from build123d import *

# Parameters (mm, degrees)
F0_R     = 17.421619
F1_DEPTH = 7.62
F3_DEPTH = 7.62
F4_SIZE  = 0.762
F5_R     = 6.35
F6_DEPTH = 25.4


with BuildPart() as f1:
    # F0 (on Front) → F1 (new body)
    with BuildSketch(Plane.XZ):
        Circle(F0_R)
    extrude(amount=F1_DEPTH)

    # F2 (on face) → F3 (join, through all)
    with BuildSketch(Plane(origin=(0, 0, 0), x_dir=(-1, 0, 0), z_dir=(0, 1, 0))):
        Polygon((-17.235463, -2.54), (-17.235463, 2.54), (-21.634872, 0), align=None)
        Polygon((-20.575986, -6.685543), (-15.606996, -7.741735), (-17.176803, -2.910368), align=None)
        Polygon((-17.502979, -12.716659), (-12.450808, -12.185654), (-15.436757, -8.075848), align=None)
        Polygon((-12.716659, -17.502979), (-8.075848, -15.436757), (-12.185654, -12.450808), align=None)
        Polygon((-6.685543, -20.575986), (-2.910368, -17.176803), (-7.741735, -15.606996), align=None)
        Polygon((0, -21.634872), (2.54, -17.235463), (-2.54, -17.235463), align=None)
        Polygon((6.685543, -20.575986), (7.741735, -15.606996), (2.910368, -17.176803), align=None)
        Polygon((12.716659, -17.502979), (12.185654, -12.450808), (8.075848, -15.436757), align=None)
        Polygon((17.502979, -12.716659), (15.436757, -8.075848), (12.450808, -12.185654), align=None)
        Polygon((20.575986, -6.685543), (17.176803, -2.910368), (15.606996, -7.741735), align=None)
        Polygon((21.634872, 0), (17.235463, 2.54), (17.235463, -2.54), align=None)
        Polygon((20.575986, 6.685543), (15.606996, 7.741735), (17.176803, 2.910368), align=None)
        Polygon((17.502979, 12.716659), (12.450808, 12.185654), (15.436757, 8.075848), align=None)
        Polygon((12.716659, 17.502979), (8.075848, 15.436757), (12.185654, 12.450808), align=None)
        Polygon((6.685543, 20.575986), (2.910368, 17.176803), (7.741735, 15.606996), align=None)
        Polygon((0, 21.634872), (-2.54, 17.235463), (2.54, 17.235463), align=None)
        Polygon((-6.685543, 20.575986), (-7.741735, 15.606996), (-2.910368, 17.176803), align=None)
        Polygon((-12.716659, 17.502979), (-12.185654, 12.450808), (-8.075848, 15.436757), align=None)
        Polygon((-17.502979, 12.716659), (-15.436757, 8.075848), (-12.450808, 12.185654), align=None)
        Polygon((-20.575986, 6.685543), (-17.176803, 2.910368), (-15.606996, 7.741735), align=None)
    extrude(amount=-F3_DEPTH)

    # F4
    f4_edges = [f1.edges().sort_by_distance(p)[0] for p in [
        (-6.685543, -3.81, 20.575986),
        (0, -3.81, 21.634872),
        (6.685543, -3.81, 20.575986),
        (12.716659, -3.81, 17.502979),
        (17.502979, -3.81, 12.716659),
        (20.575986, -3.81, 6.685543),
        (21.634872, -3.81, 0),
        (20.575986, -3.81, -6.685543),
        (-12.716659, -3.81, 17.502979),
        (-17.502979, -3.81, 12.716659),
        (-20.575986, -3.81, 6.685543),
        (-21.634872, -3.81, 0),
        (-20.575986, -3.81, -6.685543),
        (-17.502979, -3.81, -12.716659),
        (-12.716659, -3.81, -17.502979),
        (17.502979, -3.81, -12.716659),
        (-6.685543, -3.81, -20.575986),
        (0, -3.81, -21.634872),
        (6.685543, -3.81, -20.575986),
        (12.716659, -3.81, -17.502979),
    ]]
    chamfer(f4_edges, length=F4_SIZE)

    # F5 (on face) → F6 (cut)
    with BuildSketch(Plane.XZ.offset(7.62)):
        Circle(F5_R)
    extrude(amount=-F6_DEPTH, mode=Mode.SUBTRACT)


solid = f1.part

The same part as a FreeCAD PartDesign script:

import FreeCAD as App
import Part
import Sketcher

V = App.Vector
Q = App.Units.Quantity


def edges_at(feature, points):
    """Names of the edges that pass closest to the given points."""
    edges = feature.Shape.Edges
    near = lambda p: min(range(len(edges)), key=lambda i: edges[i].distToShape(Part.Vertex(*p))[0])
    return sorted({f"Edge{near(p) + 1}" for p in points})


def add_polygon(sketch, points):
    """Adds a closed chain of lines whose ends are joined by coincident constraints."""
    first, n = sketch.GeometryCount, len(points)
    for a, b in zip(points, points[1:] + points[:1]):
        sketch.addGeometry(Part.LineSegment(App.Vector(*a, 0), App.Vector(*b, 0)), False)
    for i in range(n):
        sketch.addConstraint(Sketcher.Constraint("Coincident", first + i, 2, first + (i + 1) % n, 1))

doc = App.newDocument("Part")
body = doc.addObject("PartDesign::Body", "Body")

sketch1 = body.newObject("Sketcher::SketchObject", "Sketch")
sketch1.AttachmentSupport = (doc.getObject("XZ_Plane"), [""])
sketch1.MapMode = "FlatFace"
sketch1.addGeometry(Part.Circle(V(0, 0, 0), V(0, 0, 1), 17), False)
sketch1.addConstraint([
    Sketcher.Constraint("Coincident", 0, 3, -1, 1),
    Sketcher.Constraint("Diameter", 0, 34.843238),
])
pad1 = body.newObject("PartDesign::Pad", "Pad")
pad1.Profile = sketch1
pad1.Length = Q("0.3 in")

sketch2 = body.newObject("Sketcher::SketchObject", "Sketch001")
sketch2.AttachmentSupport = (doc.getObject("XZ_Plane"), [""])
sketch2.MapMode = "FlatFace"
add_polygon(sketch2, [(17, -3), (17, 3), (22, 0)])
add_polygon(sketch2, [(21, -7), (16, -8), (17, -3)])
add_polygon(sketch2, [(18, -13), (12, -12), (15, -8)])
add_polygon(sketch2, [(13, -18), (8, -15), (12, -12)])
add_polygon(sketch2, [(7, -21), (3, -17), (8, -16)])
add_polygon(sketch2, [(0, -22), (-3, -17), (3, -17)])
add_polygon(sketch2, [(-7, -21), (-8, -16), (-3, -17)])
add_polygon(sketch2, [(-13, -18), (-12, -12), (-8, -15)])
add_polygon(sketch2, [(-18, -13), (-15, -8), (-12, -12)])
add_polygon(sketch2, [(-21, -7), (-17, -3), (-16, -8)])
add_polygon(sketch2, [(-22, 0), (-17, 3), (-17, -3)])
add_polygon(sketch2, [(-21, 7), (-16, 8), (-17, 3)])
add_polygon(sketch2, [(-18, 13), (-12, 12), (-15, 8)])
add_polygon(sketch2, [(-13, 18), (-8, 15), (-12, 12)])
add_polygon(sketch2, [(-7, 21), (-3, 17), (-8, 16)])
add_polygon(sketch2, [(0, 22), (3, 17), (-3, 17)])
add_polygon(sketch2, [(7, 21), (8, 16), (3, 17)])
add_polygon(sketch2, [(13, 18), (12, 12), (8, 15)])
add_polygon(sketch2, [(18, 13), (15, 8), (12, 12)])
add_polygon(sketch2, [(21, 7), (17, 3), (16, 8)])
sketch2.addConstraint([
    Sketcher.Constraint("Vertical", 0),
    Sketcher.Constraint("Horizontal", 16),
    Sketcher.Constraint("Vertical", 31),
    Sketcher.Constraint("Horizontal", 46),
    Sketcher.Constraint("Symmetric", 2, 2, 30, 2, -1, 1),
    Sketcher.Constraint("Symmetric", 1, 2, 32, 2, -1, 1),
    Sketcher.Constraint("Symmetric", 3, 2, 33, 2, -1, 1),
    Sketcher.Constraint("Symmetric", 4, 2, 34, 2, -1, 1),
    Sketcher.Constraint("Symmetric", 5, 2, 35, 2, -1, 1),
    Sketcher.Constraint("Symmetric", 6, 2, 36, 2, -1, 1),
    Sketcher.Constraint("Symmetric", 7, 2, 37, 2, -1, 1),
    Sketcher.Constraint("Symmetric", 8, 2, 38, 2, -1, 1),
    Sketcher.Constraint("Symmetric", 9, 2, 39, 2, -1, 1),
    Sketcher.Constraint("Symmetric", 10, 2, 40, 2, -1, 1),
    Sketcher.Constraint("Symmetric", 11, 2, 41, 2, -1, 1),
    Sketcher.Constraint("Symmetric", 12, 2, 42, 2, -1, 1),
    Sketcher.Constraint("Symmetric", 13, 2, 43, 2, -1, 1),
    Sketcher.Constraint("Symmetric", 14, 2, 44, 2, -1, 1),
    Sketcher.Constraint("Symmetric", 15, 2, 45, 2, -1, 1),
    Sketcher.Constraint("Symmetric", 17, 2, 47, 2, -1, 1),
    Sketcher.Constraint("Symmetric", 18, 2, 48, 2, -1, 1),
    Sketcher.Constraint("Symmetric", 19, 2, 49, 2, -1, 1),
    Sketcher.Constraint("Symmetric", 20, 2, 50, 2, -1, 1),
    Sketcher.Constraint("Symmetric", 21, 2, 51, 2, -1, 1),
    Sketcher.Constraint("Symmetric", 22, 2, 52, 2, -1, 1),
    Sketcher.Constraint("Symmetric", 23, 2, 53, 2, -1, 1),
    Sketcher.Constraint("Symmetric", 24, 2, 54, 2, -1, 1),
    Sketcher.Constraint("Symmetric", 25, 2, 55, 2, -1, 1),
    Sketcher.Constraint("Symmetric", 26, 2, 56, 2, -1, 1),
    Sketcher.Constraint("Symmetric", 27, 2, 57, 2, -1, 1),
    Sketcher.Constraint("Symmetric", 28, 2, 58, 2, -1, 1),
    Sketcher.Constraint("Symmetric", 29, 2, 59, 2, -1, 1),
    Sketcher.Constraint("Symmetric", 13, 2, 18, 2, -2),
    Sketcher.Constraint("Symmetric", 12, 2, 19, 2, -2),
    Sketcher.Constraint("Symmetric", 14, 2, 20, 2, -2),
    Sketcher.Constraint("Symmetric", 10, 2, 21, 2, -2),
    Sketcher.Constraint("Symmetric", 9, 2, 22, 2, -2),
    Sketcher.Constraint("Symmetric", 11, 2, 23, 2, -2),
    Sketcher.Constraint("Symmetric", 7, 2, 24, 2, -2),
    Sketcher.Constraint("Symmetric", 6, 2, 25, 2, -2),
    Sketcher.Constraint("Symmetric", 8, 2, 26, 2, -2),
    Sketcher.Constraint("Symmetric", 4, 2, 27, 2, -2),
    Sketcher.Constraint("Symmetric", 3, 2, 28, 2, -2),
    Sketcher.Constraint("Symmetric", 5, 2, 29, 2, -2),
    Sketcher.Constraint("PointOnObject", 1, 2, -1),
    Sketcher.Constraint("PointOnObject", 17, 2, -2),
    Sketcher.Constraint("Perpendicular", 2, 15),
    Sketcher.Constraint("Perpendicular", 1, 17),
    Sketcher.Constraint("Perpendicular", 3, 18),
    Sketcher.Constraint("Perpendicular", 4, 19),
    Sketcher.Constraint("Perpendicular", 5, 20),
    Sketcher.Constraint("Perpendicular", 6, 21),
    Sketcher.Constraint("Perpendicular", 7, 22),
    Sketcher.Constraint("Perpendicular", 8, 23),
    Sketcher.Constraint("Perpendicular", 17, 32),
    Sketcher.Constraint("Perpendicular", 32, 47),
    Sketcher.Constraint("Horizontal", 0, 2, 30, 2),
    Sketcher.Constraint("Equal", 46, 0),
    Sketcher.Constraint("Equal", 2, 3),
    Sketcher.Constraint("Equal", 3, 4),
    Sketcher.Constraint("Equal", 4, 5),
    Sketcher.Constraint("Equal", 5, 6),
    Sketcher.Constraint("Equal", 6, 7),
    Sketcher.Constraint("Equal", 7, 8),
    Sketcher.Constraint("Equal", 8, 9),
    Sketcher.Constraint("Equal", 11, 12),
    Sketcher.Constraint("DistanceX", 16, 1, 16, 2, Q("0.2 in")),
    Sketcher.Constraint("Angle", 1, Q("-30 deg")),
    Sketcher.Constraint("Angle", 3, Q("-167.999994 deg")),
    Sketcher.Constraint("Angle", 6, Q("173.999995 deg")),
    Sketcher.Constraint("DistanceY", 9, 2, 8, 2, 2.720098),
    Sketcher.Constraint("DistanceX", 11, 2, 7, 2, 2.720098),
    Sketcher.Constraint("DistanceY", 4, 2, -1, 1, 2.910368),
    Sketcher.Constraint("DistanceX", -1, 1, 8, 2, 17.502979),
    Sketcher.Constraint("DistanceY", 8, 2, -1, 1, 12.716659),
    Sketcher.Constraint("DistanceX", -1, 1, 12, 2, 2.910368),
    Sketcher.Constraint("DistanceX", 4, 2, 2, 2, 0.05866),
    Sketcher.Constraint("DistanceX", 6, 2, 3, 2, 3.156188),
    Sketcher.Constraint("DistanceY", 12, 2, 6, 2, 4.991149),
    Sketcher.Constraint("DistanceY", 15, 2, 12, 2, 0.05866),
])
pad2 = body.newObject("PartDesign::Pad", "Pad001")
pad2.Profile = sketch2
pad2.Type = "UpToLast"
doc.recompute()

chamfer = body.newObject("PartDesign::Chamfer", "Chamfer")
chamfer.Base = (pad2, edges_at(pad2, [
    (-6.686, -3.81, 20.576),
    (0, -3.81, 21.635),
    (6.686, -3.81, 20.576),
    (12.717, -3.81, 17.503),
    (17.503, -3.81, 12.717),
    (20.576, -3.81, 6.686),
    (21.635, -3.81, 0),
    (20.576, -3.81, -6.686),
    (-12.717, -3.81, 17.503),
    (-17.503, -3.81, 12.717),
    (-20.576, -3.81, 6.686),
    (-21.635, -3.81, 0),
    (-20.576, -3.81, -6.686),
    (-17.503, -3.81, -12.717),
    (-12.717, -3.81, -17.503),
    (17.503, -3.81, -12.717),
    (-6.686, -3.81, -20.576),
    (0, -3.81, -21.635),
    (6.686, -3.81, -20.576),
    (12.717, -3.81, -17.503),
]))
chamfer.Size = Q("0.03 in")

sketch3 = body.newObject("Sketcher::SketchObject", "Sketch002")
sketch3.AttachmentSupport = (doc.getObject("XZ_Plane"), [""])
sketch3.MapMode = "FlatFace"
sketch3.AttachmentOffset = App.Placement(V(0, 0, 0.3 * 25.4), App.Rotation())
sketch3.addGeometry(Part.Circle(V(0, 0, 0), V(0, 0, 1), 6), False)
sketch3.addConstraint([
    Sketcher.Constraint("Coincident", 0, 3, -1, 1),
    Sketcher.Constraint("Diameter", 0, Q("0.5 in")),
])
pocket1 = body.newObject("PartDesign::Pocket", "Pocket")
pocket1.Profile = sketch3
pocket1.Length = Q("1 in")

doc.recompute()
